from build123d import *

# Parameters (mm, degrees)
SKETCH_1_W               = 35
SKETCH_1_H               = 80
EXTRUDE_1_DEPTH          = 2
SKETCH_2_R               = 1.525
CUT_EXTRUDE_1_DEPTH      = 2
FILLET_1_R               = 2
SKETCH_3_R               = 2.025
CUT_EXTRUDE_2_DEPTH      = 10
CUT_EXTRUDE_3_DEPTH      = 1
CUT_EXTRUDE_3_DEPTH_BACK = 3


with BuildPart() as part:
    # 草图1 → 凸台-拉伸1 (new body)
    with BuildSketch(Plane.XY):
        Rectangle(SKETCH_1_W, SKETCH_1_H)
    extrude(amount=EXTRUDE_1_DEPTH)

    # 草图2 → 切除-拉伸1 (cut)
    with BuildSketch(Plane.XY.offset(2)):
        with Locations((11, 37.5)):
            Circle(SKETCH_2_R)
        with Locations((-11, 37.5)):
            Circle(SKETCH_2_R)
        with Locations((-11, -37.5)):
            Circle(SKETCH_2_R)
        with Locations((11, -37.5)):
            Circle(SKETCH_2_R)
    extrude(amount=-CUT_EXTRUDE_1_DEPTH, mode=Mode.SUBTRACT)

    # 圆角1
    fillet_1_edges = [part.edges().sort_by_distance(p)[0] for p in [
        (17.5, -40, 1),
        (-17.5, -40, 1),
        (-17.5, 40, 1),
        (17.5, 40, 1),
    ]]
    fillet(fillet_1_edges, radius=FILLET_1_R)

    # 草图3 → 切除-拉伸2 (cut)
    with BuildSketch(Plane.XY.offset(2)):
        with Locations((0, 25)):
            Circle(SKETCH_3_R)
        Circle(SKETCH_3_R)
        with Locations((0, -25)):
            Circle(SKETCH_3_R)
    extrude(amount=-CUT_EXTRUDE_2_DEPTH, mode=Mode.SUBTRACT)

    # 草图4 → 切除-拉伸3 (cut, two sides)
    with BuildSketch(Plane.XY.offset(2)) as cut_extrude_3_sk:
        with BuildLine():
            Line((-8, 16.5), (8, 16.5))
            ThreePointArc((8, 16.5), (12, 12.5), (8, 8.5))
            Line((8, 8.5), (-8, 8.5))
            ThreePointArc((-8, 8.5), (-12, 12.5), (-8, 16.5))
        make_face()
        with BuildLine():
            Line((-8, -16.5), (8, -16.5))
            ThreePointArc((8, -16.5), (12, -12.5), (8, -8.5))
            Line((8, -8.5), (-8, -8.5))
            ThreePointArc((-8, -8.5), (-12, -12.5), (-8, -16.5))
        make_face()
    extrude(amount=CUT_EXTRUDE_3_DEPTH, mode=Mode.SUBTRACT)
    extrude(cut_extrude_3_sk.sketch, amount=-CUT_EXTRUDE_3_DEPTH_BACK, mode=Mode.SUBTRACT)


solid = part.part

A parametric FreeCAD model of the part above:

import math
import FreeCAD as App
import Part
import Sketcher
Q = App.Units.Quantity


def edges_at(feature, points):
    """Names of the edges that pass closest to the given points."""
    edges = feature.Shape.Edges
    near = lambda p: min(range(len(edges)), key=lambda i: edges[i].distToShape(Part.Vertex(*p))[0])
    return sorted({f"Edge{near(p) + 1}" for p in points})

doc = App.newDocument("Part")
body = doc.addObject("PartDesign::Body", "Body")

sketch1 = body.newObject("Sketcher::SketchObject", "Sketch")
sketch1.AttachmentSupport = (doc.getObject("XY_Plane"), [""])
sketch1.MapMode = "FlatFace"
sketch1.addGeometry(Part.LineSegment(App.Vector(-18, 40, 0), App.Vector(-18, -40, 0)), False)
sketch1.addGeometry(Part.LineSegment(App.Vector(-18, -40, 0), App.Vector(18, -40, 0)), False)
sketch1.addGeometry(Part.LineSegment(App.Vector(18, -40, 0), App.Vector(18, 40, 0)), False)
sketch1.addGeometry(Part.LineSegment(App.Vector(18, 40, 0), App.Vector(-18, 40, 0)), False)
sketch1.addConstraint(Sketcher.Constraint("Coincident", 0, 2, 1, 1))
sketch1.addConstraint(Sketcher.Constraint("Coincident", 1, 2, 2, 1))
sketch1.addConstraint(Sketcher.Constraint("Coincident", 2, 2, 3, 1))
sketch1.addConstraint(Sketcher.Constraint("Coincident", 3, 2, 0, 1))
sketch1.addConstraint(Sketcher.Constraint("Vertical", 0))
sketch1.addConstraint(Sketcher.Constraint("Horizontal", 1))
sketch1.addConstraint(Sketcher.Constraint("Vertical", 2))
sketch1.addConstraint(Sketcher.Constraint("Horizontal", 3))
sketch1.addConstraint(Sketcher.Constraint("Symmetric", 0, 2, 2, 2, -1, 1))
sketch1.addConstraint(Sketcher.Constraint("DistanceX", 1, 1, 1, 2, Q("35 mm")))
sketch1.addConstraint(Sketcher.Constraint("DistanceY", 0, 2, 0, 1, Q("80 mm")))
pad1 = body.newObject("PartDesign::Pad", "Pad")
pad1.Profile = sketch1
pad1.Length = 2

sketch2 = body.newObject("Sketcher::SketchObject", "Sketch001")
sketch2.AttachmentSupport = (doc.getObject("XY_Plane"), [""])
sketch2.MapMode = "FlatFace"
sketch2.AttachmentOffset = App.Placement(App.Vector(0, 0, 2), App.Rotation())
sketch2.addGeometry(Part.Circle(App.Vector(11, 37.5, 0), App.Vector(0, 0, 1), 1.5), False)
sketch2.addGeometry(Part.Circle(App.Vector(-11, 37.5, 0), App.Vector(0, 0, 1), 1.5), False)
sketch2.addGeometry(Part.Circle(App.Vector(-11, -37.5, 0), App.Vector(0, 0, 1), 1.5), False)
sketch2.addGeometry(Part.Circle(App.Vector(11, -37.5, 0), App.Vector(0, 0, 1), 1.5), False)
sketch2.addConstraint(Sketcher.Constraint("Equal", 0, 1))
sketch2.addConstraint(Sketcher.Constraint("Equal", 1, 2))
sketch2.addConstraint(Sketcher.Constraint("Equal", 2, 3))
sketch2.addConstraint(Sketcher.Constraint("Symmetric", 0, 3, 2, 3, -1, 1))
sketch2.addConstraint(Sketcher.Constraint("Symmetric", 1, 3, 3, 3, -1, 1))
sketch2.addConstraint(Sketcher.Constraint("Symmetric", 0, 3, 1, 3, -2))
sketch2.addConstraint(Sketcher.Constraint("Diameter", 0, Q("3.05 mm")))
sketch2.addConstraint(Sketcher.Constraint("DistanceX", -1, 1, 0, 3, Q("11 mm")))
sketch2.addConstraint(Sketcher.Constraint("DistanceY", 2, 3, 1, 3, Q("75 mm")))
pocket1 = body.newObject("PartDesign::Pocket", "Pocket")
pocket1.Profile = sketch2
pocket1.Length = 2
doc.recompute()

fillet = body.newObject("PartDesign::Fillet", "Fillet")
fillet.Base = (pocket1, edges_at(pocket1, [
    (17.5, -40, 1),
    (-17.5, -40, 1),
    (-17.5, 40, 1),
    (17.5, 40, 1),
]))
fillet.Radius = 2

sketch3 = body.newObject("Sketcher::SketchObject", "Sketch002")
sketch3.AttachmentSupport = (doc.getObject("XY_Plane"), [""])
sketch3.MapMode = "FlatFace"
sketch3.AttachmentOffset = App.Placement(App.Vector(0, 0, 2), App.Rotation())
sketch3.addGeometry(Part.Circle(App.Vector(0, 25, 0), App.Vector(0, 0, 1), 2), False)
sketch3.addGeometry(Part.Circle(App.Vector(0, 0, 0), App.Vector(0, 0, 1), 2), False)
sketch3.addGeometry(Part.Circle(App.Vector(0, -25, 0), App.Vector(0, 0, 1), 2), False)
sketch3.addConstraint(Sketcher.Constraint("Coincident", 1, 3, -1, 1))
sketch3.addConstraint(Sketcher.Constraint("Equal", 0, 1))
sketch3.addConstraint(Sketcher.Constraint("Equal", 1, 2))
sketch3.addConstraint(Sketcher.Constraint("Symmetric", 0, 3, 2, 3, -1, 1))
sketch3.addConstraint(Sketcher.Constraint("PointOnObject", 0, 3, -2))
sketch3.addConstraint(Sketcher.Constraint("Diameter", 0, Q("4.05 mm")))
sketch3.addConstraint(Sketcher.Constraint("DistanceY", -1, 1, 0, 3, Q("25 mm")))
pocket2 = body.newObject("PartDesign::Pocket", "Pocket001")
pocket2.Profile = sketch3
pocket2.Length = 10

sketch4 = body.newObject("Sketcher::SketchObject", "Sketch003")
sketch4.AttachmentSupport = (doc.getObject("XY_Plane"), [""])
sketch4.MapMode = "FlatFace"
sketch4.AttachmentOffset = App.Placement(App.Vector(0, 0, 2), App.Rotation())
sketch4.addGeometry(Part.LineSegment(App.Vector(8, 16.5, 0), App.Vector(-8, 16.5, 0)), False)
sketch4.addGeometry(Part.ArcOfCircle(Part.Circle(App.Vector(-8, 12.5, 0), App.Vector(0, 0, 1), 4), math.radians(90), math.radians(270)), False)
sketch4.addGeometry(Part.LineSegment(App.Vector(-8, 8.5, 0), App.Vector(8, 8.5, 0)), False)
sketch4.addGeometry(Part.ArcOfCircle(Part.Circle(App.Vector(8, 12.5, 0), App.Vector(0, 0, 1), 4), math.radians(-90), math.radians(90)), False)
sketch4.addGeometry(Part.LineSegment(App.Vector(-8, -16.5, 0), App.Vector(8, -16.5, 0)), False)
sketch4.addGeometry(Part.ArcOfCircle(Part.Circle(App.Vector(8, -12.5, 0), App.Vector(0, 0, 1), 4), math.radians(-90), math.radians(90)), False)
sketch4.addGeometry(Part.LineSegment(App.Vector(8, -8.5, 0), App.Vector(-8, -8.5, 0)), False)
sketch4.addGeometry(Part.ArcOfCircle(Part.Circle(App.Vector(-8, -12.5, 0), App.Vector(0, 0, 1), 4), math.radians(90), math.radians(270)), False)
sketch4.addConstraint(Sketcher.Constraint("Tangent", 0, 2, 1, 1))
sketch4.addConstraint(Sketcher.Constraint("Tangent", 1, 2, 2, 1))
sketch4.addConstraint(Sketcher.Constraint("Tangent", 2, 2, 3, 1))
sketch4.addConstraint(Sketcher.Constraint("Tangent", 3, 2, 0, 1))
sketch4.addConstraint(Sketcher.Constraint("Tangent", 4, 2, 5, 1))
sketch4.addConstraint(Sketcher.Constraint("Tangent", 5, 2, 6, 1))
sketch4.addConstraint(Sketcher.Constraint("Tangent", 6, 2, 7, 1))
sketch4.addConstraint(Sketcher.Constraint("Tangent", 7, 2, 4, 1))
sketch4.addConstraint(Sketcher.Constraint("Horizontal", 0))
sketch4.addConstraint(Sketcher.Constraint("Horizontal", 2))
sketch4.addConstraint(Sketcher.Constraint("Horizontal", 4))
sketch4.addConstraint(Sketcher.Constraint("Horizontal", 6))
sketch4.addConstraint(Sketcher.Constraint("Equal", 3, 5))
sketch4.addConstraint(Sketcher.Constraint("Symmetric", 1, 3, 5, 3, -1, 1))
sketch4.addConstraint(Sketcher.Constraint("Vertical", 3, 3, 5, 3))
sketch4.addConstraint(Sketcher.Constraint("Vertical", 1, 3, 7, 3))
sketch4.addConstraint(Sketcher.Constraint("Radius", 1, Q("4 mm")))
sketch4.addConstraint(Sketcher.Constraint("DistanceX", 0, 2, 0, 1, Q("16 mm")))
sketch4.addConstraint(Sketcher.Constraint("DistanceY", 5, 3, 3, 3, Q("25 mm")))
pocket3 = body.newObject("PartDesign::Pocket", "Pocket002")
pocket3.Profile = sketch4
pocket3.Type = "ThroughAll"
pocket3.Midplane = True

doc.recompute()
